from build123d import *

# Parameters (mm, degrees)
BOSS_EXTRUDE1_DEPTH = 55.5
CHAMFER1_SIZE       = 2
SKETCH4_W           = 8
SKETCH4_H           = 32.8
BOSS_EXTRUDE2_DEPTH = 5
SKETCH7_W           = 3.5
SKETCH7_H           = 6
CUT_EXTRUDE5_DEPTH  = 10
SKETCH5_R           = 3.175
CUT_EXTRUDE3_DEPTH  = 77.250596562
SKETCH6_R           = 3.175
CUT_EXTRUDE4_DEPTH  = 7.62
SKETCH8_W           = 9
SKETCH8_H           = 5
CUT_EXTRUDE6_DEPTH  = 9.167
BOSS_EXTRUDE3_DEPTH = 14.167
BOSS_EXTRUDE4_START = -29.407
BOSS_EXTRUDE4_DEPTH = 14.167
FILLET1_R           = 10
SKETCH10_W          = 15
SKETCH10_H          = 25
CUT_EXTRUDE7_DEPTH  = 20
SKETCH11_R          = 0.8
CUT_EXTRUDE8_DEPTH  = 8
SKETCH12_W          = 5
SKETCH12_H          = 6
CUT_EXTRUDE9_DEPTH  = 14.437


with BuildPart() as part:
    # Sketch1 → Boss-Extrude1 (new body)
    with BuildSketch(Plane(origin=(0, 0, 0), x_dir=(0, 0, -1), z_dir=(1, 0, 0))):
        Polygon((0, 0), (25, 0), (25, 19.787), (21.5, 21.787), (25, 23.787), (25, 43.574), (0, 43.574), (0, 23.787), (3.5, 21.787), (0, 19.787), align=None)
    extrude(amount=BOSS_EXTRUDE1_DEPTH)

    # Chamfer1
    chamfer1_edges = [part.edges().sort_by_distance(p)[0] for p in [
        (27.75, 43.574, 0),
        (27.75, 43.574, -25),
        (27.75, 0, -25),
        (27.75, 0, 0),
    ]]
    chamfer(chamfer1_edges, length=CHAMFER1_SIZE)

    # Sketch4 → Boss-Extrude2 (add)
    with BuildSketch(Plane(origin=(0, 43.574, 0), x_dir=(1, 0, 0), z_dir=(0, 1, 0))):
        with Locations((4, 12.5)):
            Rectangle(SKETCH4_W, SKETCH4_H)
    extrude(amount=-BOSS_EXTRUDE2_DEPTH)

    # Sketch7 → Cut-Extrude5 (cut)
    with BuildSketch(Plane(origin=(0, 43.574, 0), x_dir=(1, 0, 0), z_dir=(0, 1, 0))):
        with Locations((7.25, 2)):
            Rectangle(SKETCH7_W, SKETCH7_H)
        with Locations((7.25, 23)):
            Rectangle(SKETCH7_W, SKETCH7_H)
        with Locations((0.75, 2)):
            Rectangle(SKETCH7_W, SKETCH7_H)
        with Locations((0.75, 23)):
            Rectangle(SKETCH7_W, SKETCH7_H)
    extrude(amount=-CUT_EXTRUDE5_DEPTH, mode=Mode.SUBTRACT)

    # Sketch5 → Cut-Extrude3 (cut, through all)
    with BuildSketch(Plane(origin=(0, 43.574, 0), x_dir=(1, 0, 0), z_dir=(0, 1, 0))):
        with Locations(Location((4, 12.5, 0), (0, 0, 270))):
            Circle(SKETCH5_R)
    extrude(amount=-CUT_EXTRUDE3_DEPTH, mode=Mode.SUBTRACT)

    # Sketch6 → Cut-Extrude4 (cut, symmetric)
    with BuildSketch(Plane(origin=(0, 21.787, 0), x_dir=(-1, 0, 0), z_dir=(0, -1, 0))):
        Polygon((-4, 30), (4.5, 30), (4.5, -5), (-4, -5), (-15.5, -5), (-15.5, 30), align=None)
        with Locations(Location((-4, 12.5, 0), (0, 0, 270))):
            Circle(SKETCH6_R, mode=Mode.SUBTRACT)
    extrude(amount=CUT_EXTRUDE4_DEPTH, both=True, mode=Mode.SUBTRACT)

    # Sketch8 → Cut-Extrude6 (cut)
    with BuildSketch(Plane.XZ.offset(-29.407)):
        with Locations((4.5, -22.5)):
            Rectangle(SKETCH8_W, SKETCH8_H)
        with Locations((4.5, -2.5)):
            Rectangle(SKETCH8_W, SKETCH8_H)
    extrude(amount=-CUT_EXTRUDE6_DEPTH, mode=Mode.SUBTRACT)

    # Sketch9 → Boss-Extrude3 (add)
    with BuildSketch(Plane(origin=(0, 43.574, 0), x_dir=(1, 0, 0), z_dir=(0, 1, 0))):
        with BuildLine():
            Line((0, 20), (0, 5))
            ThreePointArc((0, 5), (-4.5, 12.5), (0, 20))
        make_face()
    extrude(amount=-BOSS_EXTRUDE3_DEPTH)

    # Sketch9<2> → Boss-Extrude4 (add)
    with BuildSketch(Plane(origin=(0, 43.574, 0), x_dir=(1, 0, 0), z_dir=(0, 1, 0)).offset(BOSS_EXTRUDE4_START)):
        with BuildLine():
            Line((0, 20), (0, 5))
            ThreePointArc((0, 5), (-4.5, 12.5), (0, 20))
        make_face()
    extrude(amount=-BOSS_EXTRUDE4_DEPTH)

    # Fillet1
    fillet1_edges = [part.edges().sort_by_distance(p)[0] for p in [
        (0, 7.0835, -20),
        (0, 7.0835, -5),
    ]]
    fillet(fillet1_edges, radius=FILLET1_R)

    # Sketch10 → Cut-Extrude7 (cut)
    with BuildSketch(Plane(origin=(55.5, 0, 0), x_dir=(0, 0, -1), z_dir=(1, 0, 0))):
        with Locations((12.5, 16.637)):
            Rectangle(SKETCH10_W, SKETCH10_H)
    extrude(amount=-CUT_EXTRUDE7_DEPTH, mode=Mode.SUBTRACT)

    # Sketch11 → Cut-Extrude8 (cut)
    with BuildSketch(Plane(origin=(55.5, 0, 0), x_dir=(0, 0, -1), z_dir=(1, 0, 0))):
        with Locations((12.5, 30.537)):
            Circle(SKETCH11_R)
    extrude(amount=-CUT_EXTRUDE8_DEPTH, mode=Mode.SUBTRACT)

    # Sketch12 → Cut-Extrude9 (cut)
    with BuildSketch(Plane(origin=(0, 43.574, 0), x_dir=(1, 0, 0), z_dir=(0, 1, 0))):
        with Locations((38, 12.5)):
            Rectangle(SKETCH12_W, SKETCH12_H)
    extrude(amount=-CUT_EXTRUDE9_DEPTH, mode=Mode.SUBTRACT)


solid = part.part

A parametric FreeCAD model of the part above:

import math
import FreeCAD as App
import Part
import Sketcher
from FreeCAD import Vector


def edges_at(feature, points):
    """Names of the edges that pass closest to the given points."""
    edges = feature.Shape.Edges
    near = lambda p: min(range(len(edges)), key=lambda i: edges[i].distToShape(Part.Vertex(*p))[0])
    return sorted({f"Edge{near(p) + 1}" for p in points})

doc = App.newDocument("Part")
body = doc.addObject("PartDesign::Body", "Body")

# Sketch on YZ plane
sketch1 = body.newObject("Sketcher::SketchObject", "Sketch")
sketch1.AttachmentSupport = (doc.getObject("YZ_Plane"), [""])
sketch1.MapMode = "FlatFace"
sketch1.addGeometry(Part.LineSegment(Vector(0, 0, 0), Vector(0, -25, 0)), False)
sketch1.addGeometry(Part.LineSegment(Vector(0, -25, 0), Vector(19.787, -25, 0)), False)
sketch1.addGeometry(Part.LineSegment(Vector(19.787, -25, 0), Vector(21.787, -21.5, 0)), False)
sketch1.addGeometry(Part.LineSegment(Vector(21.787, -21.5, 0), Vector(23.787, -25, 0)), False)
sketch1.addGeometry(Part.LineSegment(Vector(23.787, -25, 0), Vector(43.574, -25, 0)), False)
sketch1.addGeometry(Part.LineSegment(Vector(43.574, -25, 0), Vector(43.574, 0, 0)), False)
sketch1.addGeometry(Part.LineSegment(Vector(43.574, 0, 0), Vector(23.787, 0, 0)), False)
sketch1.addGeometry(Part.LineSegment(Vector(23.787, 0, 0), Vector(21.787, -3.5, 0)), False)
sketch1.addGeometry(Part.LineSegment(Vector(21.787, -3.5, 0), Vector(19.787, 0, 0)), False)
sketch1.addGeometry(Part.LineSegment(Vector(19.787, 0, 0), Vector(0, 0, 0)), False)
sketch1.addConstraint(Sketcher.Constraint("Coincident", 0, 2, 1, 1))
sketch1.addConstraint(Sketcher.Constraint("Coincident", 1, 2, 2, 1))
sketch1.addConstraint(Sketcher.Constraint("Coincident", 2, 2, 3, 1))
sketch1.addConstraint(Sketcher.Constraint("Coincident", 3, 2, 4, 1))
sketch1.addConstraint(Sketcher.Constraint("Coincident", 4, 2, 5, 1))
sketch1.addConstraint(Sketcher.Constraint("Coincident", 5, 2, 6, 1))
sketch1.addConstraint(Sketcher.Constraint("Coincident", 6, 2, 7, 1))
sketch1.addConstraint(Sketcher.Constraint("Coincident", 7, 2, 8, 1))
sketch1.addConstraint(Sketcher.Constraint("Coincident", 8, 2, 9, 1))
sketch1.addConstraint(Sketcher.Constraint("Coincident", 9, 2, 0, 1))
sketch1.addConstraint(Sketcher.Constraint("Vertical", 0))
sketch1.addConstraint(Sketcher.Constraint("Horizontal", 1))
sketch1.addConstraint(Sketcher.Constraint("Horizontal", 4))
sketch1.addConstraint(Sketcher.Constraint("Vertical", 5))
sketch1.addConstraint(Sketcher.Constraint("Horizontal", 6))
sketch1.addConstraint(Sketcher.Constraint("Horizontal", 9))
sketch1.addConstraint(Sketcher.Constraint("Coincident", 9, 2, -1, 1))
sketch1.addConstraint(Sketcher.Constraint("PointOnObject", 5, 2, -1))
sketch1.addConstraint(Sketcher.Constraint("Parallel", 2, 7))
sketch1.addConstraint(Sketcher.Constraint("Parallel", 3, 8))
sketch1.addConstraint(Sketcher.Constraint("Horizontal", 1, 2, 3, 2))
sketch1.addConstraint(Sketcher.Constraint("Vertical", 3, 2, 6, 2))
sketch1.addConstraint(Sketcher.Constraint("Vertical", 2, 2, 7, 2))
sketch1.addConstraint(Sketcher.Constraint("Vertical", 1, 2, 8, 2))
sketch1.addConstraint(Sketcher.Constraint("Equal", 1, 4))
sketch1.addConstraint(Sketcher.Constraint("DistanceY", 0, 2, 0, 1, 25.0))
sketch1.addConstraint(Sketcher.Constraint("DistanceX", 1, 2, 2, 2, 2.0))
sketch1.addConstraint(Sketcher.Constraint("DistanceY", 2, 2, 7, 2, 18.0))
sketch1.addConstraint(Sketcher.Constraint("DistanceX", 1, 1, 1, 2, 19.787))
pad1 = body.newObject("PartDesign::Pad", "Pad")
pad1.Profile = sketch1
pad1.Length = 55.5
doc.recompute()

chamfer = body.newObject("PartDesign::Chamfer", "Chamfer")
chamfer.Base = (pad1, edges_at(pad1, [
    (27.75, 43.574, 0),
    (27.75, 43.574, -25),
    (27.75, 0, -25),
    (27.75, 0, 0),
]))
chamfer.Size = 2

# Sketch on XZ plane
sketch2 = body.newObject("Sketcher::SketchObject", "Sketch001")
sketch2.AttachmentSupport = (doc.getObject("XZ_Plane"), [""])
sketch2.MapMode = "FlatFace"
sketch2.AttachmentOffset = App.Placement(Vector(0, 0, -43.574), App.Rotation())
sketch2.addGeometry(Part.LineSegment(Vector(0, -28.9, 0), Vector(0, 3.9, 0)), False)
sketch2.addGeometry(Part.LineSegment(Vector(0, 3.9, 0), Vector(8, 3.9, 0)), False)
sketch2.addGeometry(Part.LineSegment(Vector(8, 3.9, 0), Vector(8, -28.9, 0)), False)
sketch2.addGeometry(Part.LineSegment(Vector(8, -28.9, 0), Vector(0, -28.9, 0)), False)
sketch2.addConstraint(Sketcher.Constraint("Coincident", 0, 2, 1, 1))
sketch2.addConstraint(Sketcher.Constraint("Coincident", 1, 2, 2, 1))
sketch2.addConstraint(Sketcher.Constraint("Coincident", 2, 2, 3, 1))
sketch2.addConstraint(Sketcher.Constraint("Coincident", 3, 2, 0, 1))
sketch2.addConstraint(Sketcher.Constraint("Vertical", 0))
sketch2.addConstraint(Sketcher.Constraint("Horizontal", 1))
sketch2.addConstraint(Sketcher.Constraint("Vertical", 2))
sketch2.addConstraint(Sketcher.Constraint("Horizontal", 3))
sketch2.addConstraint(Sketcher.Constraint("PointOnObject", 0, 2, -2))
sketch2.addConstraint(Sketcher.Constraint("DistanceX", 1, 1, 1, 2, 8.0))
sketch2.addConstraint(Sketcher.Constraint("DistanceY", 0, 1, 0, 2, 32.8))
sketch2.addConstraint(Sketcher.Constraint("DistanceY", -1, 1, 0, 2, 3.9))
pad2 = body.newObject("PartDesign::Pad", "Pad001")
pad2.Profile = sketch2
pad2.Length = 5

# Sketch on XZ plane
sketch3 = body.newObject("Sketcher::SketchObject", "Sketch002")
sketch3.AttachmentSupport = (doc.getObject("XZ_Plane"), [""])
sketch3.MapMode = "FlatFace"
sketch3.AttachmentOffset = App.Placement(Vector(0, 0, -43.574), App.Rotation())
sketch3.addGeometry(Part.LineSegment(Vector(5.5, -5, 0), Vector(5.5, 1, 0)), False)
sketch3.addGeometry(Part.LineSegment(Vector(5.5, 1, 0), Vector(9, 1, 0)), False)
sketch3.addGeometry(Part.LineSegment(Vector(9, 1, 0), Vector(9, -5, 0)), False)
sketch3.addGeometry(Part.LineSegment(Vector(9, -5, 0), Vector(5.5, -5, 0)), False)
sketch3.addGeometry(Part.LineSegment(Vector(5.5, -26, 0), Vector(5.5, -20, 0)), False)
sketch3.addGeometry(Part.LineSegment(Vector(5.5, -20, 0), Vector(9, -20, 0)), False)
sketch3.addGeometry(Part.LineSegment(Vector(9, -20, 0), Vector(9, -26, 0)), False)
sketch3.addGeometry(Part.LineSegment(Vector(9, -26, 0), Vector(5.5, -26, 0)), False)
sketch3.addGeometry(Part.LineSegment(Vector(-1, -5, 0), Vector(-1, 1, 0)), False)
sketch3.addGeometry(Part.LineSegment(Vector(-1, 1, 0), Vector(2.5, 1, 0)), False)
sketch3.addGeometry(Part.LineSegment(Vector(2.5, 1, 0), Vector(2.5, -5, 0)), False)
sketch3.addGeometry(Part.LineSegment(Vector(2.5, -5, 0), Vector(-1, -5, 0)), False)
sketch3.addGeometry(Part.LineSegment(Vector(-1, -26, 0), Vector(-1, -20, 0)), False)
sketch3.addGeometry(Part.LineSegment(Vector(-1, -20, 0), Vector(2.5, -20, 0)), False)
sketch3.addGeometry(Part.LineSegment(Vector(2.5, -20, 0), Vector(2.5, -26, 0)), False)
sketch3.addGeometry(Part.LineSegment(Vector(2.5, -26, 0), Vector(-1, -26, 0)), False)
sketch3.addConstraint(Sketcher.Constraint("Coincident", 0, 2, 1, 1))
sketch3.addConstraint(Sketcher.Constraint("Coincident", 1, 2, 2, 1))
sketch3.addConstraint(Sketcher.Constraint("Coincident", 2, 2, 3, 1))
sketch3.addConstraint(Sketcher.Constraint("Coincident", 3, 2, 0, 1))
sketch3.addConstraint(Sketcher.Constraint("Coincident", 4, 2, 5, 1))
sketch3.addConstraint(Sketcher.Constraint("Coincident", 5, 2, 6, 1))
sketch3.addConstraint(Sketcher.Constraint("Coincident", 6, 2, 7, 1))
sketch3.addConstraint(Sketcher.Constraint("Coincident", 7, 2, 4, 1))
sketch3.addConstraint(Sketcher.Constraint("Coincident", 8, 2, 9, 1))
sketch3.addConstraint(Sketcher.Constraint("Coincident", 9, 2, 10, 1))
sketch3.addConstraint(Sketcher.Constraint("Coincident", 10, 2, 11, 1))
sketch3.addConstraint(Sketcher.Constraint("Coincident", 11, 2, 8, 1))
sketch3.addConstraint(Sketcher.Constraint("Coincident", 12, 2, 13, 1))
sketch3.addConstraint(Sketcher.Constraint("Coincident", 13, 2, 14, 1))
sketch3.addConstraint(Sketcher.Constraint("Coincident", 14, 2, 15, 1))
sketch3.addConstraint(Sketcher.Constraint("Coincident", 15, 2, 12, 1))
sketch3.addConstraint(Sketcher.Constraint("Vertical", 0))
sketch3.addConstraint(Sketcher.Constraint("Horizontal", 1))
sketch3.addConstraint(Sketcher.Constraint("Vertical", 2))
sketch3.addConstraint(Sketcher.Constraint("Horizontal", 3))
sketch3.addConstraint(Sketcher.Constraint("Vertical", 4))
sketch3.addConstraint(Sketcher.Constraint("Horizontal", 5))
sketch3.addConstraint(Sketcher.Constraint("Vertical", 6))
sketch3.addConstraint(Sketcher.Constraint("Horizontal", 7))
sketch3.addConstraint(Sketcher.Constraint("Vertical", 8))
sketch3.addConstraint(Sketcher.Constraint("Horizontal", 9))
sketch3.addConstraint(Sketcher.Constraint("Vertical", 10))
sketch3.addConstraint(Sketcher.Constraint("Horizontal", 11))
sketch3.addConstraint(Sketcher.Constraint("Vertical", 12))
sketch3.addConstraint(Sketcher.Constraint("Horizontal", 13))
sketch3.addConstraint(Sketcher.Constraint("Vertical", 14))
sketch3.addConstraint(Sketcher.Constraint("Horizontal", 15))
sketch3.addConstraint(Sketcher.Constraint("Horizontal", 1, 2, 8, 2))
sketch3.addConstraint(Sketcher.Constraint("Horizontal", 3, 2, 10, 2))
sketch3.addConstraint(Sketcher.Constraint("Horizontal", 5, 2, 12, 2))
sketch3.addConstraint(Sketcher.Constraint("Horizontal", 7, 2, 14, 2))
sketch3.addConstraint(Sketcher.Constraint("Vertical", 3, 2, 4, 2))
sketch3.addConstraint(Sketcher.Constraint("Vertical", 2, 2, 5, 2))
sketch3.addConstraint(Sketcher.Constraint("Vertical", 11, 2, 12, 2))
sketch3.addConstraint(Sketcher.Constraint("Vertical", 10, 2, 13, 2))
sketch3.addConstraint(Sketcher.Constraint("Equal", 7, 9))
sketch3.addConstraint(Sketcher.Constraint("Equal", 2, 4))
sketch3.addConstraint(Sketcher.Constraint("DistanceY", 0, 1, 0, 2, 6.0))
sketch3.addConstraint(Sketcher.Constraint("DistanceX", 1, 1, 1, 2, 3.5))
sketch3.addConstraint(Sketcher.Constraint("DistanceY", -1, 1, 0, 2, 1.0))
sketch3.addConstraint(Sketcher.Constraint("DistanceX", -1, 1, 1, 2, 9.0))
sketch3.addConstraint(Sketcher.Constraint("DistanceY", 4, 2, -1, 1, 20.0))
sketch3.addConstraint(Sketcher.Constraint("DistanceX", 8, 2, -1, 1, 1.0))
pocket1 = body.newObject("PartDesign::Pocket", "Pocket")
pocket1.Profile = sketch3
pocket1.Length = 10
pocket1.Reversed = True

# Sketch on XZ plane
sketch4 = body.newObject("Sketcher::SketchObject", "Sketch003")
sketch4.AttachmentSupport = (doc.getObject("XZ_Plane"), [""])
sketch4.MapMode = "FlatFace"
sketch4.AttachmentOffset = App.Placement(Vector(0, 0, -43.574), App.Rotation())
sketch4.addGeometry(Part.Circle(Vector(4, -12.5, 0), Vector(0, 0, 1), 3.175), False)
sketch4.addConstraint(Sketcher.Constraint("Diameter", 0, 6.35))
sketch4.addConstraint(Sketcher.Constraint("DistanceX", -1, 1, 0, 3, 4.0))
sketch4.addConstraint(Sketcher.Constraint("DistanceY", 0, 3, -1, 1, 12.5))
pocket2 = body.newObject("PartDesign::Pocket", "Pocket001")
pocket2.Profile = sketch4
pocket2.Type = "ThroughAll"
pocket2.Reversed = True

# Sketch on XZ plane
sketch5 = body.newObject("Sketcher::SketchObject", "Sketch004")
sketch5.AttachmentSupport = (doc.getObject("XZ_Plane"), [""])
sketch5.MapMode = "FlatFace"
sketch5.AttachmentOffset = App.Placement(Vector(0, 0, -21.787), App.Rotation())
sketch5.addGeometry(Part.LineSegment(Vector(-4.5, -30, 0), Vector(15.5, -30, 0)), False)
sketch5.addGeometry(Part.LineSegment(Vector(15.5, -30, 0), Vector(15.5, 5, 0)), False)
sketch5.addGeometry(Part.LineSegment(Vector(15.5, 5, 0), Vector(-4.5, 5, 0)), False)
sketch5.addGeometry(Part.LineSegment(Vector(-4.5, 5, 0), Vector(-4.5, -30, 0)), False)
sketch5.addGeometry(Part.Circle(Vector(4, -12.5, 0), Vector(0, 0, 1), 3.175), False)
sketch5.addConstraint(Sketcher.Constraint("Coincident", 0, 2, 1, 1))
sketch5.addConstraint(Sketcher.Constraint("Coincident", 1, 2, 2, 1))
sketch5.addConstraint(Sketcher.Constraint("Coincident", 2, 2, 3, 1))
sketch5.addConstraint(Sketcher.Constraint("Coincident", 3, 2, 0, 1))
sketch5.addConstraint(Sketcher.Constraint("Horizontal", 0))
sketch5.addConstraint(Sketcher.Constraint("Vertical", 1))
sketch5.addConstraint(Sketcher.Constraint("Horizontal", 2))
sketch5.addConstraint(Sketcher.Constraint("Vertical", 3))
sketch5.addConstraint(Sketcher.Constraint("Diameter", 4, 6.35))
sketch5.addConstraint(Sketcher.Constraint("DistanceX", 0, 1, 0, 2, 20.0))
sketch5.addConstraint(Sketcher.Constraint("DistanceY", 1, 1, 1, 2, 35.0))
sketch5.addConstraint(Sketcher.Constraint("DistanceX", -1, 1, 4, 3, 4.0))
sketch5.addConstraint(Sketcher.Constraint("DistanceY", 0, 2, -1, 1, 30.0))
sketch5.addConstraint(Sketcher.Constraint("DistanceY", 4, 3, -1, 1, 12.5))
sketch5.addConstraint(Sketcher.Constraint("DistanceX", -1, 1, 0, 2, 15.5))
pocket3 = body.newObject("PartDesign::Pocket", "Pocket002")
pocket3.Profile = sketch5
pocket3.Length = 15.24
pocket3.Midplane = True

# Sketch on XZ plane
sketch6 = body.newObject("Sketcher::SketchObject", "Sketch005")
sketch6.AttachmentSupport = (doc.getObject("XZ_Plane"), [""])
sketch6.MapMode = "FlatFace"
sketch6.AttachmentOffset = App.Placement(Vector(0, 0, -29.407), App.Rotation())
sketch6.addGeometry(Part.LineSegment(Vector(0, -20, 0), Vector(0, -25, 0)), False)
sketch6.addGeometry(Part.LineSegment(Vector(0, -25, 0), Vector(9, -25, 0)), False)
sketch6.addGeometry(Part.LineSegment(Vector(9, -25, 0), Vector(9, -20, 0)), False)
sketch6.addGeometry(Part.LineSegment(Vector(9, -20, 0), Vector(0, -20, 0)), False)
sketch6.addGeometry(Part.LineSegment(Vector(0, 0, 0), Vector(0, -5, 0)), False)
sketch6.addGeometry(Part.LineSegment(Vector(0, -5, 0), Vector(9, -5, 0)), False)
sketch6.addGeometry(Part.LineSegment(Vector(9, -5, 0), Vector(9, 0, 0)), False)
sketch6.addGeometry(Part.LineSegment(Vector(9, 0, 0), Vector(0, 0, 0)), False)
sketch6.addConstraint(Sketcher.Constraint("Coincident", 0, 2, 1, 1))
sketch6.addConstraint(Sketcher.Constraint("Coincident", 1, 2, 2, 1))
sketch6.addConstraint(Sketcher.Constraint("Coincident", 2, 2, 3, 1))
sketch6.addConstraint(Sketcher.Constraint("Coincident", 3, 2, 0, 1))
sketch6.addConstraint(Sketcher.Constraint("Coincident", 4, 2, 5, 1))
sketch6.addConstraint(Sketcher.Constraint("Coincident", 5, 2, 6, 1))
sketch6.addConstraint(Sketcher.Constraint("Coincident", 6, 2, 7, 1))
sketch6.addConstraint(Sketcher.Constraint("Coincident", 7, 2, 4, 1))
sketch6.addConstraint(Sketcher.Constraint("Vertical", 0))
sketch6.addConstraint(Sketcher.Constraint("Horizontal", 1))
sketch6.addConstraint(Sketcher.Constraint("Vertical", 2))
sketch6.addConstraint(Sketcher.Constraint("Horizontal", 3))
sketch6.addConstraint(Sketcher.Constraint("Vertical", 4))
sketch6.addConstraint(Sketcher.Constraint("Horizontal", 5))
sketch6.addConstraint(Sketcher.Constraint("Vertical", 6))
sketch6.addConstraint(Sketcher.Constraint("Horizontal", 7))
sketch6.addConstraint(Sketcher.Constraint("Coincident", 7, 2, -1, 1))
sketch6.addConstraint(Sketcher.Constraint("PointOnObject", 0, 2, -2))
sketch6.addConstraint(Sketcher.Constraint("Vertical", 2, 2, 5, 2))
sketch6.addConstraint(Sketcher.Constraint("Equal", 2, 4))
sketch6.addConstraint(Sketcher.Constraint("DistanceX", 1, 1, 1, 2, 9.0))
sketch6.addConstraint(Sketcher.Constraint("DistanceY", 0, 2, 0, 1, 5.0))
sketch6.addConstraint(Sketcher.Constraint("DistanceY", 0, 2, -1, 1, 25.0))
pocket4 = body.newObject("PartDesign::Pocket", "Pocket003")
pocket4.Profile = sketch6
pocket4.Length = 9.167

# Sketch on XZ plane
sketch7 = body.newObject("Sketcher::SketchObject", "Sketch006")
sketch7.AttachmentSupport = (doc.getObject("XZ_Plane"), [""])
sketch7.MapMode = "FlatFace"
sketch7.AttachmentOffset = App.Placement(Vector(0, 0, -43.574), App.Rotation())
sketch7.addGeometry(Part.LineSegment(Vector(0, -5, 0), Vector(0, -20, 0)), False)
sketch7.addGeometry(Part.ArcOfCircle(Part.Circle(Vector(4, -12.5, 0), Vector(0, 0, 1), 8.5), math.radians(118.072487), math.radians(241.927513)), False)
sketch7.addConstraint(Sketcher.Constraint("Coincident", 0, 1, 1, 1))
sketch7.addConstraint(Sketcher.Constraint("Coincident", 1, 2, 0, 2))
sketch7.addConstraint(Sketcher.Constraint("Vertical", 0))
sketch7.addConstraint(Sketcher.Constraint("PointOnObject", 0, 1, -2))
sketch7.addConstraint(Sketcher.Constraint("Radius", 1, 8.5))
sketch7.addConstraint(Sketcher.Constraint("DistanceY", 0, 2, 0, 1, 15.0))
sketch7.addConstraint(Sketcher.Constraint("DistanceY", 0, 1, -1, 1, 5.0))
pad3 = body.newObject("PartDesign::Pad", "Pad002")
pad3.Profile = sketch7
pad3.Length = 14.167

# Sketch on XZ plane
sketch8 = body.newObject("Sketcher::SketchObject", "Sketch007")
sketch8.AttachmentSupport = (doc.getObject("XZ_Plane"), [""])
sketch8.MapMode = "FlatFace"
sketch8.AttachmentOffset = App.Placement(Vector(0, 0, -14.167), App.Rotation())
sketch8.addGeometry(Part.LineSegment(Vector(0, -5, 0), Vector(0, -20, 0)), False)
sketch8.addGeometry(Part.ArcOfCircle(Part.Circle(Vector(4, -12.5, 0), Vector(0, 0, 1), 8.5), math.radians(118.072487), math.radians(241.927513)), False)
sketch8.addConstraint(Sketcher.Constraint("Coincident", 0, 1, 1, 1))
sketch8.addConstraint(Sketcher.Constraint("Coincident", 1, 2, 0, 2))
sketch8.addConstraint(Sketcher.Constraint("Vertical", 0))
sketch8.addConstraint(Sketcher.Constraint("PointOnObject", 0, 1, -2))
sketch8.addConstraint(Sketcher.Constraint("Radius", 1, 8.5))
sketch8.addConstraint(Sketcher.Constraint("DistanceY", 0, 2, 0, 1, 15.0))
sketch8.addConstraint(Sketcher.Constraint("DistanceY", 0, 1, -1, 1, 5.0))
pad4 = body.newObject("PartDesign::Pad", "Pad003")
pad4.Profile = sketch8
pad4.Length = 14.167
doc.recompute()

fillet = body.newObject("PartDesign::Fillet", "Fillet")
fillet.Base = (pad4, edges_at(pad4, [(0, 7.083, -20), (0, 7.083, -5)]))
fillet.Radius = 10

# Sketch on YZ plane
sketch9 = body.newObject("Sketcher::SketchObject", "Sketch008")
sketch9.AttachmentSupport = (doc.getObject("YZ_Plane"), [""])
sketch9.MapMode = "FlatFace"
sketch9.AttachmentOffset = App.Placement(Vector(0, 0, 55.5), App.Rotation())
sketch9.addGeometry(Part.LineSegment(Vector(29.137, -5, 0), Vector(4.137, -5, 0)), False)
sketch9.addGeometry(Part.LineSegment(Vector(4.137, -5, 0), Vector(4.137, -20, 0)), False)
sketch9.addGeometry(Part.LineSegment(Vector(4.137, -20, 0), Vector(29.137, -20, 0)), False)
sketch9.addGeometry(Part.LineSegment(Vector(29.137, -20, 0), Vector(29.137, -5, 0)), False)
sketch9.addConstraint(Sketcher.Constraint("Coincident", 0, 2, 1, 1))
sketch9.addConstraint(Sketcher.Constraint("Coincident", 1, 2, 2, 1))
sketch9.addConstraint(Sketcher.Constraint("Coincident", 2, 2, 3, 1))
sketch9.addConstraint(Sketcher.Constraint("Coincident", 3, 2, 0, 1))
sketch9.addConstraint(Sketcher.Constraint("Horizontal", 0))
sketch9.addConstraint(Sketcher.Constraint("Vertical", 1))
sketch9.addConstraint(Sketcher.Constraint("Horizontal", 2))
sketch9.addConstraint(Sketcher.Constraint("Vertical", 3))
sketch9.addConstraint(Sketcher.Constraint("DistanceX", 0, 2, 0, 1, 25.0))
sketch9.addConstraint(Sketcher.Constraint("DistanceY", 1, 2, 1, 1, 15.0))
sketch9.addConstraint(Sketcher.Constraint("DistanceY", 0, 2, -1, 1, 5.0))
sketch9.addConstraint(Sketcher.Constraint("DistanceX", -1, 1, 0, 2, 4.137))
pocket5 = body.newObject("PartDesign::Pocket", "Pocket004")
pocket5.Profile = sketch9
pocket5.Length = 20

# Sketch on YZ plane
sketch10 = body.newObject("Sketcher::SketchObject", "Sketch009")
sketch10.AttachmentSupport = (doc.getObject("YZ_Plane"), [""])
sketch10.MapMode = "FlatFace"
sketch10.AttachmentOffset = App.Placement(Vector(0, 0, 55.5), App.Rotation())
sketch10.addGeometry(Part.Circle(Vector(30.537, -12.5, 0), Vector(0, 0, 1), 0.8), False)
sketch10.addConstraint(Sketcher.Constraint("Diameter", 0, 1.6))
sketch10.addConstraint(Sketcher.Constraint("DistanceY", 0, 3, -1, 1, 12.5))
sketch10.addConstraint(Sketcher.Constraint("DistanceX", -1, 1, 0, 3, 30.537))
pocket6 = body.newObject("PartDesign::Pocket", "Pocket005")
pocket6.Profile = sketch10
pocket6.Length = 8

# Sketch on XZ plane
sketch11 = body.newObject("Sketcher::SketchObject", "Sketch010")
sketch11.AttachmentSupport = (doc.getObject("XZ_Plane"), [""])
sketch11.MapMode = "FlatFace"
sketch11.AttachmentOffset = App.Placement(Vector(0, 0, -43.574), App.Rotation())
sketch11.addGeometry(Part.LineSegment(Vector(35.5, -15.5, 0), Vector(35.5, -9.5, 0)), False)
sketch11.addGeometry(Part.LineSegment(Vector(35.5, -9.5, 0), Vector(40.5, -9.5, 0)), False)
sketch11.addGeometry(Part.LineSegment(Vector(40.5, -9.5, 0), Vector(40.5, -15.5, 0)), False)
sketch11.addGeometry(Part.LineSegment(Vector(40.5, -15.5, 0), Vector(35.5, -15.5, 0)), False)
sketch11.addConstraint(Sketcher.Constraint("Coincident", 0, 2, 1, 1))
sketch11.addConstraint(Sketcher.Constraint("Coincident", 1, 2, 2, 1))
sketch11.addConstraint(Sketcher.Constraint("Coincident", 2, 2, 3, 1))
sketch11.addConstraint(Sketcher.Constraint("Coincident", 3, 2, 0, 1))
sketch11.addConstraint(Sketcher.Constraint("Vertical", 0))
sketch11.addConstraint(Sketcher.Constraint("Horizontal", 1))
sketch11.addConstraint(Sketcher.Constraint("Vertical", 2))
sketch11.addConstraint(Sketcher.Constraint("Horizontal", 3))
sketch11.addConstraint(Sketcher.Constraint("DistanceX", 1, 1, 1, 2, 5.0))
sketch11.addConstraint(Sketcher.Constraint("DistanceY", 0, 1, 0, 2, 6.0))
sketch11.addConstraint(Sketcher.Constraint("DistanceX", -1, 1, 0, 2, 35.5))
sketch11.addConstraint(Sketcher.Constraint("DistanceY", 0, 2, -1, 1, 9.5))
pocket7 = body.newObject("PartDesign::Pocket", "Pocket006")
pocket7.Profile = sketch11
pocket7.Length = 14.437
pocket7.Reversed = True

doc.recompute()
